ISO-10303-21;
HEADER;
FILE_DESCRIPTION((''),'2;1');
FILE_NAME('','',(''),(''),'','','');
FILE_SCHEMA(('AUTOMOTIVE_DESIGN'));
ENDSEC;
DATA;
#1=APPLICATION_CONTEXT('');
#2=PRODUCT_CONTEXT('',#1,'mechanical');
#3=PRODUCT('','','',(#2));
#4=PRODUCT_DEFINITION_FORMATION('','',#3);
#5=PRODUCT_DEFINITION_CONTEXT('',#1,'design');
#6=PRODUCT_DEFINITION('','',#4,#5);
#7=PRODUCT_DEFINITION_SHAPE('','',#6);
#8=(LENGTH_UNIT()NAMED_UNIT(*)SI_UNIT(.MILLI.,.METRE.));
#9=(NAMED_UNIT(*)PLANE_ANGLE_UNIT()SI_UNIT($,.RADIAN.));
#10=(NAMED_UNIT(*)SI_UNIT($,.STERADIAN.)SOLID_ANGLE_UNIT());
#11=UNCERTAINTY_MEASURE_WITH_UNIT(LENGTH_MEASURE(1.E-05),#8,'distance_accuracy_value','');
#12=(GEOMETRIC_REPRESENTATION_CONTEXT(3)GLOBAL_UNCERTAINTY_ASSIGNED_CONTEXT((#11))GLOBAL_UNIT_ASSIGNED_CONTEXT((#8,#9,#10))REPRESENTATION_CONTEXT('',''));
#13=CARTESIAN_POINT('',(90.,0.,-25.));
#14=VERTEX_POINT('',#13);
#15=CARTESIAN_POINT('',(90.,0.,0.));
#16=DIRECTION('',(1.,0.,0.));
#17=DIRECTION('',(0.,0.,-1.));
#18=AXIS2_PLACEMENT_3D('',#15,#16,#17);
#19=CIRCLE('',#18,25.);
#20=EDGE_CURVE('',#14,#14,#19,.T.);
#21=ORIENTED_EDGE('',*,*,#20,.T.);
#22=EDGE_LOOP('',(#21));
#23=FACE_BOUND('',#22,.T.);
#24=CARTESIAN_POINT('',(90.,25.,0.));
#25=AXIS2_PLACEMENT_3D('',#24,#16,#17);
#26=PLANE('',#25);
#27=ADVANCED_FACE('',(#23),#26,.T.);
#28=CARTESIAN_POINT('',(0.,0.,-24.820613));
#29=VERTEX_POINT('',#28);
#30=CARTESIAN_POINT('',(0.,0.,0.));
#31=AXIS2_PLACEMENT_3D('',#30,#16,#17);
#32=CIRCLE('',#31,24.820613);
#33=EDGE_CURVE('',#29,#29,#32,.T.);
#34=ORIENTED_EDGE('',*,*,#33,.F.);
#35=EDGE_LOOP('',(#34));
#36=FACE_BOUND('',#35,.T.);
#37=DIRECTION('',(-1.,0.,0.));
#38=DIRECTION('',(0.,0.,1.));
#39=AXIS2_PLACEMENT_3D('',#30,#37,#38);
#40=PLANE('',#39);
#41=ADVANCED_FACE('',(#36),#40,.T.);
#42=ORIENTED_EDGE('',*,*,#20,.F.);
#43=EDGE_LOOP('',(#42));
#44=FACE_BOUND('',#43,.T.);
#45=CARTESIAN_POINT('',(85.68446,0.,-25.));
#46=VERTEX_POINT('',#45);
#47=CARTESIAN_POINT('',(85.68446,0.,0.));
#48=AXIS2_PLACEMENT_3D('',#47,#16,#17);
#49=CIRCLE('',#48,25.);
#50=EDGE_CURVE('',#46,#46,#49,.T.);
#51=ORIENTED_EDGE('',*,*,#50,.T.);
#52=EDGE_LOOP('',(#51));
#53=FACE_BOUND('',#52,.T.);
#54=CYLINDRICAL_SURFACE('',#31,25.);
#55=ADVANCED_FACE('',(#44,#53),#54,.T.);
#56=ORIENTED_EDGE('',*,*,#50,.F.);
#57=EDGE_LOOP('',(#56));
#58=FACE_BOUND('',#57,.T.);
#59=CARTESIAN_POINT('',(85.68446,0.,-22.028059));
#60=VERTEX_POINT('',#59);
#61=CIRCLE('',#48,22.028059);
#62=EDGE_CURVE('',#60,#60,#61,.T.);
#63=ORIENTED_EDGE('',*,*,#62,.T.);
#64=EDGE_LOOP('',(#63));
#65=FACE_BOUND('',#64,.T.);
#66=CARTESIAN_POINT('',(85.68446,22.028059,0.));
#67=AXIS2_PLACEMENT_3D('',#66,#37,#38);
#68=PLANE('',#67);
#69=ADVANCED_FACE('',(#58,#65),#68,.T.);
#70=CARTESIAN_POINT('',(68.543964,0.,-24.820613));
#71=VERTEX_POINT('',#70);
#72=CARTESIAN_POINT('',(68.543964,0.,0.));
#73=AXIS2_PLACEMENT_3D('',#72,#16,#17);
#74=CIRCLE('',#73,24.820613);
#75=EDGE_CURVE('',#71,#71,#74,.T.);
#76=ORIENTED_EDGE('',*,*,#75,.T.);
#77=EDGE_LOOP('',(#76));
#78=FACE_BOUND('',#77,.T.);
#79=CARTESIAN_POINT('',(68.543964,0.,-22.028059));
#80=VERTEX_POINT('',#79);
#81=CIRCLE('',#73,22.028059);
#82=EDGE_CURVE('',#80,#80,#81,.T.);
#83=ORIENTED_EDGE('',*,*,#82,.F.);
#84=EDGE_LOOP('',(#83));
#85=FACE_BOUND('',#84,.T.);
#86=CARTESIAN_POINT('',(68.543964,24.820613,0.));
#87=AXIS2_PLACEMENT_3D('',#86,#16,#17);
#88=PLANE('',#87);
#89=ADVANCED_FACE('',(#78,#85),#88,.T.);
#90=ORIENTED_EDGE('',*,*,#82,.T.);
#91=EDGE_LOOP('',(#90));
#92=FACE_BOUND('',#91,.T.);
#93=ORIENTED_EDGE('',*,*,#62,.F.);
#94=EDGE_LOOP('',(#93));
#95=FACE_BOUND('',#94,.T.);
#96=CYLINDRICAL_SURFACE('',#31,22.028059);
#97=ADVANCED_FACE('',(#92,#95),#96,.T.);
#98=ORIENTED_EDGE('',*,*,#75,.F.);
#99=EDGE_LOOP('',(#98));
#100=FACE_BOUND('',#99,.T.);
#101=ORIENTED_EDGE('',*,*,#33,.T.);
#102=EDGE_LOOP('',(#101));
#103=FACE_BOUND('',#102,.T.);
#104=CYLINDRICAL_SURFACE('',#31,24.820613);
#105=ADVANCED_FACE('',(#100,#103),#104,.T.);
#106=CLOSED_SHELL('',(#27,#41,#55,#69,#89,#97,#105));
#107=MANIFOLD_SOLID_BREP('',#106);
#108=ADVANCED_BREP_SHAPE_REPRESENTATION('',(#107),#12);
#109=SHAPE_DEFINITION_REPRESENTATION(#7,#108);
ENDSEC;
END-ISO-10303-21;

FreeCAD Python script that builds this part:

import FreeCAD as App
import Part
import Sketcher

V = App.Vector
Q = App.Units.Quantity


def add_polygon(sketch, points):
    """Adds a closed chain of lines whose ends are joined by coincident constraints."""
    first, n = sketch.GeometryCount, len(points)
    for a, b in zip(points, points[1:] + points[:1]):
        sketch.addGeometry(Part.LineSegment(App.Vector(*a, 0), App.Vector(*b, 0)), False)
    for i in range(n):
        sketch.addConstraint(Sketcher.Constraint("Coincident", first + i, 2, first + (i + 1) % n, 1))

doc = App.newDocument("Part")
body = doc.addObject("PartDesign::Body", "Body")

sketch1 = body.newObject("Sketcher::SketchObject", "Sketch")
sketch1.AttachmentSupport = (doc.getObject("XY_Plane"), [""])
sketch1.MapMode = "FlatFace"
add_polygon(sketch1, [(0, 24.820613), (0, 0), (90, 0), (90, 25), (85.68446, 25), (85.68446, 22.028059), (68.543964, 22.028059), (68.543964, 24.820613)])
sketch1.addConstraint([
    Sketcher.Constraint("Vertical", 0),
    Sketcher.Constraint("Horizontal", 1),
    Sketcher.Constraint("Vertical", 2),
    Sketcher.Constraint("Horizontal", 3),
    Sketcher.Constraint("Vertical", 4),
    Sketcher.Constraint("Horizontal", 5),
    Sketcher.Constraint("Vertical", 6),
    Sketcher.Constraint("Horizontal", 7),
    Sketcher.Constraint("Coincident", 0, 2, -1, 1),
    Sketcher.Constraint("DistanceX", 1, 1, 1, 2, Q("90 mm")),
    Sketcher.Constraint("DistanceY", 2, 1, 2, 2, Q("25 mm")),
    Sketcher.Constraint("DistanceX", 3, 2, 3, 1, Q("4.31554 mm")),
    Sketcher.Constraint("DistanceY", 4, 2, 4, 1, Q("2.971941 mm")),
    Sketcher.Constraint("DistanceX", 5, 2, 5, 1, Q("17.140496 mm")),
    Sketcher.Constraint("DistanceY", 0, 2, 0, 1, Q("24.820613 mm")),
])
revolution = body.newObject("PartDesign::Revolution", "Revolution")
revolution.Profile = sketch1
revolution.ReferenceAxis = (sketch1, ["H_Axis"])
revolution.Angle = 360

doc.recompute()
